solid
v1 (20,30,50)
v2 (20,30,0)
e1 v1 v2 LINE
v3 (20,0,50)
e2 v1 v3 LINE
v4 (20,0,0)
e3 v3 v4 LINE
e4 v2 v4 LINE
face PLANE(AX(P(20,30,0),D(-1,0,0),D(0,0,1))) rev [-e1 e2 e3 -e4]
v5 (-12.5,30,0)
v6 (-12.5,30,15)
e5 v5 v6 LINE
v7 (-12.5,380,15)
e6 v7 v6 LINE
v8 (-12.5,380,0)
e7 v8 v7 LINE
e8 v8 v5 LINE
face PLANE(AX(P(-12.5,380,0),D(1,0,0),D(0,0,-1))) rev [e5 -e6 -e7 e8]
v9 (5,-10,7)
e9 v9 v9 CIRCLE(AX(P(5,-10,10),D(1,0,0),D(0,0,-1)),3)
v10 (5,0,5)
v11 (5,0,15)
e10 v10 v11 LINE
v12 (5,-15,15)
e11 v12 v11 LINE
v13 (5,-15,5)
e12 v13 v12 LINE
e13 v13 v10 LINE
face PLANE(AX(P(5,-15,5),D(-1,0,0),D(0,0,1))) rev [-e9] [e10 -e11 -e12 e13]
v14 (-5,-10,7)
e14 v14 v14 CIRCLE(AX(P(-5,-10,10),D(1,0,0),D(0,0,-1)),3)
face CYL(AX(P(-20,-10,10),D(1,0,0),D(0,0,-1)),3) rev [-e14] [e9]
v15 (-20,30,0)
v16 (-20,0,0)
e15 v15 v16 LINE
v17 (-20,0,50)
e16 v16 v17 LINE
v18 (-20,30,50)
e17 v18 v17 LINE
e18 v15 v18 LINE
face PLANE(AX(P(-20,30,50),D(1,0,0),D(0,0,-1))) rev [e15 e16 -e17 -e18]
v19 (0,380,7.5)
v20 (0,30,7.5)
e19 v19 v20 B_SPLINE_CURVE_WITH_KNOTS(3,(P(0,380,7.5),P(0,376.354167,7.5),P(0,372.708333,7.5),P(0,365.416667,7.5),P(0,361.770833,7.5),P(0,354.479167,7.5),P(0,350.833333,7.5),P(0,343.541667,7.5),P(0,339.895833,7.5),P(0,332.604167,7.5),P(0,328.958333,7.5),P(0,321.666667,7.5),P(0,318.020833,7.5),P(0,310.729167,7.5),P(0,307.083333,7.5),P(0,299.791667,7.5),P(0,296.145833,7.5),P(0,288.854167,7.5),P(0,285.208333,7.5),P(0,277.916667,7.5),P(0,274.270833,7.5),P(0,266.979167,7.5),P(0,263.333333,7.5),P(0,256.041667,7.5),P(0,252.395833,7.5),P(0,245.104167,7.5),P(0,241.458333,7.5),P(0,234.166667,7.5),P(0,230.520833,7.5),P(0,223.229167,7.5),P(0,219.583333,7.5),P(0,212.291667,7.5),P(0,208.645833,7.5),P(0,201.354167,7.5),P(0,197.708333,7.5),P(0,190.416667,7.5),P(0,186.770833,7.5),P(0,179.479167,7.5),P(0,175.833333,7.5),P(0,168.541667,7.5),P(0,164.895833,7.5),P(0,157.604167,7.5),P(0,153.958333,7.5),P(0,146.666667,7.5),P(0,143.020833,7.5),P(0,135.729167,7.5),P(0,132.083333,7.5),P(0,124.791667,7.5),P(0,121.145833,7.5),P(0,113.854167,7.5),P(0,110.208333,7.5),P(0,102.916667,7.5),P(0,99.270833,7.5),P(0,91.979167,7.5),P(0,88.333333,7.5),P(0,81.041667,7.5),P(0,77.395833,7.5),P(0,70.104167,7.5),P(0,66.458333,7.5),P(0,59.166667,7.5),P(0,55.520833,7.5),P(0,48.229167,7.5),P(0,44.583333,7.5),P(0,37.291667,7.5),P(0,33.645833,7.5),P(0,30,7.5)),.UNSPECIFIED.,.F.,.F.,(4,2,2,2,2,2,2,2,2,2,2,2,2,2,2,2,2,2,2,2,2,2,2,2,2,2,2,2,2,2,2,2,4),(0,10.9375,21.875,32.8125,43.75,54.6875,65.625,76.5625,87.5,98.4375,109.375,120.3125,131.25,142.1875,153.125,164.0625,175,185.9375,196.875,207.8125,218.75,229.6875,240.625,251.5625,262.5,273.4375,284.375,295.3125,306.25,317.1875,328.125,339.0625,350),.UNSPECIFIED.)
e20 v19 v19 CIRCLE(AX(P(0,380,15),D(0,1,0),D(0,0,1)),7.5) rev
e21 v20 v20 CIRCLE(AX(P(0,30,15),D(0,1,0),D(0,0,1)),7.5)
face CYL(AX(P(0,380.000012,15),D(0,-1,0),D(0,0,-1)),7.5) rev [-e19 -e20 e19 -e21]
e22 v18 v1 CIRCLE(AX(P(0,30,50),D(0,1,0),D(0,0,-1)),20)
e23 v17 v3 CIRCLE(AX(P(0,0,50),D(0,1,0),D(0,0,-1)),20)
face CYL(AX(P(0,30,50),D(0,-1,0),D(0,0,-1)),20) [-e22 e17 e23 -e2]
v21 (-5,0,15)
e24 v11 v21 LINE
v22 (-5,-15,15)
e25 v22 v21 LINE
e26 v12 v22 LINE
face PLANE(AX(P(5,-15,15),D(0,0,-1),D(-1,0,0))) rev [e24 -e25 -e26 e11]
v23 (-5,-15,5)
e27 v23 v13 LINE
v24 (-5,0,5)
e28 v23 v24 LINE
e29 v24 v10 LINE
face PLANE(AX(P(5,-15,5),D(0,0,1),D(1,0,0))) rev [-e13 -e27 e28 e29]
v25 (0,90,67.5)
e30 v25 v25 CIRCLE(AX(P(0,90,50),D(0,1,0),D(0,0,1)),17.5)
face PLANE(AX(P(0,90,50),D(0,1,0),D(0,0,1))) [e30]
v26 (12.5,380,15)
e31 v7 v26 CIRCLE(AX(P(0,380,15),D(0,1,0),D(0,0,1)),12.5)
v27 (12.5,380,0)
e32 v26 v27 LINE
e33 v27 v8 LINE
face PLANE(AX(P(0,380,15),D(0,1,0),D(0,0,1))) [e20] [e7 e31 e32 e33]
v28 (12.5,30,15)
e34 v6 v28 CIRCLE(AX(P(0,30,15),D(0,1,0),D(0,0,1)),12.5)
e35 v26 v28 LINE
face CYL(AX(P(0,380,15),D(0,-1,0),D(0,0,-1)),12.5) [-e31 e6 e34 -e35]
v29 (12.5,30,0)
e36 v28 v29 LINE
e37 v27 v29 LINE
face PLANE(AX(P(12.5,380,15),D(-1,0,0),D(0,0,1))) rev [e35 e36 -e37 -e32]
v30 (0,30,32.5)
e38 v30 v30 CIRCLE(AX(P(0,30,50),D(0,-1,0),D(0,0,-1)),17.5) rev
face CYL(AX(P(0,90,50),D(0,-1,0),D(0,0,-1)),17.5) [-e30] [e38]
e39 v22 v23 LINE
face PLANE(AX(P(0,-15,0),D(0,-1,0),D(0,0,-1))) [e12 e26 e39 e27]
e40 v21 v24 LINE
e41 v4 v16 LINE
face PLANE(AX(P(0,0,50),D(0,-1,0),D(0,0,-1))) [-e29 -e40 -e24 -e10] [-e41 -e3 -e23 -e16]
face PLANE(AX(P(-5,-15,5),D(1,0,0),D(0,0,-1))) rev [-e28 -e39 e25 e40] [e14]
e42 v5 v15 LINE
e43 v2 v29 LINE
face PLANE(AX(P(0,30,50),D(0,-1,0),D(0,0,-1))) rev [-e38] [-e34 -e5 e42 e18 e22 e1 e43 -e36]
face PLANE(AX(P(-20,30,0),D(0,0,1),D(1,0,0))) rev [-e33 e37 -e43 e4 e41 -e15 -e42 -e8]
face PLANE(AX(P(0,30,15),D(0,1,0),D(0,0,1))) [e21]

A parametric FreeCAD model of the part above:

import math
import FreeCAD as App
import Part
import Sketcher

V = App.Vector

doc = App.newDocument("Part")
params = doc.addObject("Spreadsheet::Sheet", "Params")
for row, (alias, value) in enumerate([
    ("sketch1_radius", "20 mm"),
    ("sketch1_height", "50 mm"),
    ("pad1_length", "30 mm"),
    ("sketch2_diameter", "35 mm"),
    ("pad2_length", "60 mm"),
    ("sketch3_radius", "12.5 mm"),
    ("sketch3_height", "15 mm"),
    ("pad3_length", "350 mm"),
    ("sketch4_diameter", "15 mm"),
    ("pocket1_length", "387.910842 mm"),
    ("pocket1_length2", "350 mm"),
    ("sketch5_width", "10 mm"),
    ("pad4_length", "15 mm"),
    ("sketch6_diameter", "6 mm"),
], start=1):
    params.set(f"A{row}", alias)
    params.set(f"B{row}", "=" + value)
    params.setAlias(f"B{row}", alias)

body = doc.addObject("PartDesign::Body", "Body")

sketch1 = body.newObject("Sketcher::SketchObject", "Sketch")
sketch1.AttachmentSupport = (doc.getObject("XZ_Plane"), [""])
sketch1.MapMode = "FlatFace"
sketch1.addGeometry(Part.LineSegment(V(-20, 0, 0), V(-20, 50, 0)), False)
sketch1.addGeometry(Part.ArcOfCircle(Part.Circle(V(0, 50, 0), V(0, 0, 1), 20), math.radians(0), math.radians(180)), False)
sketch1.addGeometry(Part.LineSegment(V(20, 50, 0), V(20, 0, 0)), False)
sketch1.addGeometry(Part.LineSegment(V(20, 0, 0), V(-20, 0, 0)), False)
sketch1.addConstraint(Sketcher.Constraint("Tangent", 0, 2, 1, 2))
sketch1.addConstraint(Sketcher.Constraint("Tangent", 1, 1, 2, 1))
sketch1.addConstraint(Sketcher.Constraint("Coincident", 2, 2, 3, 1))
sketch1.addConstraint(Sketcher.Constraint("Coincident", 3, 2, 0, 1))
sketch1.addConstraint(Sketcher.Constraint("Vertical", 0))
sketch1.addConstraint(Sketcher.Constraint("Vertical", 2))
sketch1.addConstraint(Sketcher.Constraint("Horizontal", 3))
sketch1.addConstraint(Sketcher.Constraint("Symmetric", 2, 2, 3, 2, -1, 1))
sketch1.addConstraint(Sketcher.Constraint("Radius", 1, 20.0))
sketch1.addConstraint(Sketcher.Constraint("DistanceY", 0, 1, 0, 2, 50.0))
sketch1.setExpression("Constraints[8]", "Params.sketch1_radius")
sketch1.setExpression("Constraints[9]", "Params.sketch1_height")
pad1 = body.newObject("PartDesign::Pad", "Pad")
pad1.Profile = sketch1
pad1.setExpression("Length", "Params.pad1_length")
pad1.Reversed = True

sketch2 = body.newObject("Sketcher::SketchObject", "Sketch001")
sketch2.AttachmentSupport = (doc.getObject("XZ_Plane"), [""])
sketch2.MapMode = "FlatFace"
sketch2.AttachmentOffset = App.Placement(V(0, 0, -30), App.Rotation())
sketch2.addGeometry(Part.Circle(V(0, 50, 0), V(0, 0, 1), 17.5), False)
sketch2.addConstraint(Sketcher.Constraint("PointOnObject", 0, 3, -2))
sketch2.addConstraint(Sketcher.Constraint("Diameter", 0, 35.0))
sketch2.addConstraint(Sketcher.Constraint("DistanceY", -1, 1, 0, 3, 50.0))
sketch2.setExpression("Constraints[1]", "Params.sketch2_diameter")
pad2 = body.newObject("PartDesign::Pad", "Pad001")
pad2.Profile = sketch2
pad2.setExpression("Length", "Params.pad2_length")
pad2.Reversed = True

sketch3 = body.newObject("Sketcher::SketchObject", "Sketch002")
sketch3.AttachmentSupport = (doc.getObject("XZ_Plane"), [""])
sketch3.MapMode = "FlatFace"
sketch3.AttachmentOffset = App.Placement(V(0, 0, -30), App.Rotation())
sketch3.addGeometry(Part.LineSegment(V(-12.5, 0, 0), V(-12.5, 15, 0)), False)
sketch3.addGeometry(Part.ArcOfCircle(Part.Circle(V(0, 15, 0), V(0, 0, 1), 12.5), math.radians(0), math.radians(180)), False)
sketch3.addGeometry(Part.LineSegment(V(12.5, 15, 0), V(12.5, 0, 0)), False)
sketch3.addGeometry(Part.LineSegment(V(12.5, 0, 0), V(-12.5, 0, 0)), False)
sketch3.addConstraint(Sketcher.Constraint("Tangent", 0, 2, 1, 2))
sketch3.addConstraint(Sketcher.Constraint("Tangent", 1, 1, 2, 1))
sketch3.addConstraint(Sketcher.Constraint("Coincident", 2, 2, 3, 1))
sketch3.addConstraint(Sketcher.Constraint("Coincident", 3, 2, 0, 1))
sketch3.addConstraint(Sketcher.Constraint("Vertical", 0))
sketch3.addConstraint(Sketcher.Constraint("Vertical", 2))
sketch3.addConstraint(Sketcher.Constraint("Horizontal", 3))
sketch3.addConstraint(Sketcher.Constraint("Symmetric", 2, 2, 3, 2, -1, 1))
sketch3.addConstraint(Sketcher.Constraint("Radius", 1, 12.5))
sketch3.addConstraint(Sketcher.Constraint("DistanceY", 0, 1, 0, 2, 15.0))
sketch3.setExpression("Constraints[8]", "Params.sketch3_radius")
sketch3.setExpression("Constraints[9]", "Params.sketch3_height")
pad3 = body.newObject("PartDesign::Pad", "Pad002")
pad3.Profile = sketch3
pad3.setExpression("Length", "Params.pad3_length")
pad3.Reversed = True

sketch4 = body.newObject("Sketcher::SketchObject", "Sketch003")
sketch4.AttachmentSupport = (doc.getObject("XZ_Plane"), [""])
sketch4.MapMode = "FlatFace"
sketch4.AttachmentOffset = App.Placement(V(0, 0, -380), App.Rotation())
sketch4.addGeometry(Part.Circle(V(0, 15, 0), V(0, 0, 1), 7.5), False)
sketch4.addConstraint(Sketcher.Constraint("PointOnObject", 0, 3, -2))
sketch4.addConstraint(Sketcher.Constraint("Diameter", 0, 15.0))
sketch4.addConstraint(Sketcher.Constraint("DistanceY", -1, 1, 0, 3, 15.0))
sketch4.setExpression("Constraints[1]", "Params.sketch4_diameter")
pocket1 = body.newObject("PartDesign::Pocket", "Pocket")
pocket1.Profile = sketch4
pocket1.Type = "TwoLengths"
pocket1.setExpression("Length", "Params.pocket1_length")
pocket1.setExpression("Length2", "Params.pocket1_length2")

sketch5 = body.newObject("Sketcher::SketchObject", "Sketch004")
sketch5.AttachmentSupport = (doc.getObject("XZ_Plane"), [""])
sketch5.MapMode = "FlatFace"
sketch5.addGeometry(Part.LineSegment(V(5, 5, 0), V(5, 15, 0)), False)
sketch5.addGeometry(Part.LineSegment(V(5, 15, 0), V(-5, 15, 0)), False)
sketch5.addGeometry(Part.LineSegment(V(-5, 15, 0), V(-5, 5, 0)), False)
sketch5.addGeometry(Part.LineSegment(V(-5, 5, 0), V(5, 5, 0)), False)
sketch5.addConstraint(Sketcher.Constraint("Coincident", 0, 2, 1, 1))
sketch5.addConstraint(Sketcher.Constraint("Coincident", 1, 2, 2, 1))
sketch5.addConstraint(Sketcher.Constraint("Coincident", 2, 2, 3, 1))
sketch5.addConstraint(Sketcher.Constraint("Coincident", 3, 2, 0, 1))
sketch5.addConstraint(Sketcher.Constraint("Vertical", 0))
sketch5.addConstraint(Sketcher.Constraint("Horizontal", 1))
sketch5.addConstraint(Sketcher.Constraint("Vertical", 2))
sketch5.addConstraint(Sketcher.Constraint("Horizontal", 3))
sketch5.addConstraint(Sketcher.Constraint("Equal", 3, 0))
sketch5.addConstraint(Sketcher.Constraint("DistanceX", 1, 2, 1, 1, 10.0))
sketch5.addConstraint(Sketcher.Constraint("DistanceX", -1, 1, 0, 2, 5.0))
sketch5.addConstraint(Sketcher.Constraint("DistanceY", -1, 1, 0, 2, 15.0))
sketch5.setExpression("Constraints[9]", "Params.sketch5_width")
pad4 = body.newObject("PartDesign::Pad", "Pad003")
pad4.Profile = sketch5
pad4.setExpression("Length", "Params.pad4_length")

sketch6 = body.newObject("Sketcher::SketchObject", "Sketch005")
sketch6.AttachmentSupport = (doc.getObject("YZ_Plane"), [""])
sketch6.MapMode = "FlatFace"
sketch6.AttachmentOffset = App.Placement(V(0, 0, 5), App.Rotation())
sketch6.addGeometry(Part.Circle(V(-10, 10, 0), V(0, 0, 1), 3), False)
sketch6.addConstraint(Sketcher.Constraint("Diameter", 0, 6.0))
sketch6.addConstraint(Sketcher.Constraint("DistanceX", 0, 3, -1, 1, 10.0))
sketch6.addConstraint(Sketcher.Constraint("DistanceY", -1, 1, 0, 3, 10.0))
sketch6.setExpression("Constraints[0]", "Params.sketch6_diameter")
pocket2 = body.newObject("PartDesign::Pocket", "Pocket001")
pocket2.Profile = sketch6
pocket2.Type = "ThroughAll"

doc.recompute()
